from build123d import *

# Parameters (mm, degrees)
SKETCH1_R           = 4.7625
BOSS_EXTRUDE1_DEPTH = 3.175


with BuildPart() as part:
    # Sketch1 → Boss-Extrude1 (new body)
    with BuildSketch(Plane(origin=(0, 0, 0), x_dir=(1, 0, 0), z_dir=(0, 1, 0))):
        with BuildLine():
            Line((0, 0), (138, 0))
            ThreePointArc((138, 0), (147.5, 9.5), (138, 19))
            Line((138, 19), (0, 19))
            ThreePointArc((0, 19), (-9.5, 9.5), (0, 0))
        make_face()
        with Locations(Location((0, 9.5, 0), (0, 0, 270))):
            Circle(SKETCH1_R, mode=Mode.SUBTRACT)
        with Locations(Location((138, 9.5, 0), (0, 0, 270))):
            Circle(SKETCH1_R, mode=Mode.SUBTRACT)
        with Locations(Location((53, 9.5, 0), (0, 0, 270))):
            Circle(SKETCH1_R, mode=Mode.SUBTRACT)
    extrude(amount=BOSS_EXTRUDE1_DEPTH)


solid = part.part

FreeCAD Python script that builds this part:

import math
import FreeCAD as App
import Part
import Sketcher

V = App.Vector

doc = App.newDocument("Part")
body = doc.addObject("PartDesign::Body", "Body")

# Sketch on XZ plane
sketch1 = body.newObject("Sketcher::SketchObject", "Sketch")
sketch1.AttachmentSupport = (doc.getObject("XZ_Plane"), [""])
sketch1.MapMode = "FlatFace"
sketch1.addGeometry([
    Part.LineSegment(V(0, 0, 0), V(138, 0, 0)),  # 0
    Part.ArcOfCircle(Part.Circle(V(138, -9.5, 0), V(0, 0, 1), 9.5), math.radians(-90), math.radians(90)),  # 1
    Part.LineSegment(V(138, -19, 0), V(0, -19, 0)),  # 2
    Part.ArcOfCircle(Part.Circle(V(0, -9.5, 0), V(0, 0, 1), 9.5), math.radians(90), math.radians(270)),  # 3
    Part.Circle(V(0, -9.5, 0), V(0, 0, 1), 4.8),  # 4
    Part.Circle(V(53, -9.5, 0), V(0, 0, 1), 4.8),  # 5
    Part.Circle(V(138, -9.5, 0), V(0, 0, 1), 4.8),  # 6
], False)
sketch1.addConstraint([
    Sketcher.Constraint("Tangent", 0, 2, 1, 2),
    Sketcher.Constraint("Tangent", 1, 1, 2, 1),
    Sketcher.Constraint("Tangent", 2, 2, 3, 2),
    Sketcher.Constraint("Tangent", 3, 1, 0, 1),
    Sketcher.Constraint("Horizontal", 0),
    Sketcher.Constraint("Horizontal", 2),
    Sketcher.Constraint("Coincident", 3, 1, -1, 1),
    Sketcher.Constraint("Coincident", 4, 3, 3, 3),
    Sketcher.Constraint("Coincident", 6, 3, 1, 3),
    Sketcher.Constraint("Equal", 4, 5),
    Sketcher.Constraint("Equal", 5, 6),
    Sketcher.Constraint("Horizontal", 4, 3, 5, 3),
    Sketcher.Constraint("Radius", 1, 9.5),
    Sketcher.Constraint("DistanceX", 0, 1, 0, 2, 138.0),
    Sketcher.Constraint("Diameter", 4, 9.525),
    Sketcher.Constraint("DistanceX", -1, 1, 5, 3, 53.0),
])
pad1 = body.newObject("PartDesign::Pad", "Pad")
pad1.Profile = sketch1
pad1.Length = 3.175
pad1.Reversed = True

doc.recompute()
